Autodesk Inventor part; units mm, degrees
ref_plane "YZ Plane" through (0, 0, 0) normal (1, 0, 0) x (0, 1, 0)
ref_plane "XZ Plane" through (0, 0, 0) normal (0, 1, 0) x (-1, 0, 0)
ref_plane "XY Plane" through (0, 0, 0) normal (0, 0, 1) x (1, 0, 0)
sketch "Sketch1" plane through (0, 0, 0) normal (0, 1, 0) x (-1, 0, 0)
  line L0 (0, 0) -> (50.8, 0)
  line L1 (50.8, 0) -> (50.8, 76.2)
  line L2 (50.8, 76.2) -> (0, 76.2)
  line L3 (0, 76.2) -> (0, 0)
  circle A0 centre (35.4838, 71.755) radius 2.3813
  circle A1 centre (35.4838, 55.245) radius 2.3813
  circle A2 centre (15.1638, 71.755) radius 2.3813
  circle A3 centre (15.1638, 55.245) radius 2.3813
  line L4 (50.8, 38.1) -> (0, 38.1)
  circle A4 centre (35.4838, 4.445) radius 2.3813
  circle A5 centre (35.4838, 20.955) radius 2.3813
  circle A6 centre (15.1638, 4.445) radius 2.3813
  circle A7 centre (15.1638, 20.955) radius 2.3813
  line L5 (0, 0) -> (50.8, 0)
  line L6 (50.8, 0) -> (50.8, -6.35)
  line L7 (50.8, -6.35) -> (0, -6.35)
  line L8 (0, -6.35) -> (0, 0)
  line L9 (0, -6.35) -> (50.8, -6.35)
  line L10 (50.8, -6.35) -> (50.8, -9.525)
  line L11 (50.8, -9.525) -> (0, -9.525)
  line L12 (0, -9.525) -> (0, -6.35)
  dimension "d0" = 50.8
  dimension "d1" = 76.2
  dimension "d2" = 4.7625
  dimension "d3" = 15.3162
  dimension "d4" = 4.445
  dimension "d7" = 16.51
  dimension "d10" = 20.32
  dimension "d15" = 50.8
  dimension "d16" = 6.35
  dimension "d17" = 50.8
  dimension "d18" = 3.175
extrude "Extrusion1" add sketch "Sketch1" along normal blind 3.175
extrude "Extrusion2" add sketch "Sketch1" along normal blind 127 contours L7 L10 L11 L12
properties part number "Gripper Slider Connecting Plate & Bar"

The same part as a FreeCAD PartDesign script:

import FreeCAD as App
import Part
import Sketcher
from FreeCAD import Vector
Q = App.Units.Quantity


def add_polygon(sketch, points):
    """Adds a closed chain of lines whose ends are joined by coincident constraints."""
    first, n = sketch.GeometryCount, len(points)
    for a, b in zip(points, points[1:] + points[:1]):
        sketch.addGeometry(Part.LineSegment(App.Vector(*a, 0), App.Vector(*b, 0)), False)
    for i in range(n):
        sketch.addConstraint(Sketcher.Constraint("Coincident", first + i, 2, first + (i + 1) % n, 1))

doc = App.newDocument("Part")
params = doc.addObject("Spreadsheet::Sheet", "Params")
for row, (alias, value) in enumerate([
    ("sketch1_width", "2 in"),
    ("sketch1_diameter", "0.1875 in"),
    ("pad1_length", "0.125 in"),
    ("sketch2_width", "2 in"),
    ("sketch2_height", "0.125 in"),
    ("pad2_length", "5 in"),
], start=1):
    params.set(f"A{row}", alias)
    params.set(f"B{row}", "=" + value)
    params.setAlias(f"B{row}", alias)

body = doc.addObject("PartDesign::Body", "Body")

sketch1 = body.newObject("Sketcher::SketchObject", "Sketch")
sketch1.AttachmentSupport = (doc.getObject("XZ_Plane"), [""])
sketch1.MapMode = "FlatFace"
add_polygon(sketch1, [(0, -9.5), (-50.8, -9.5), (-50.8, 76.2), (0, 76.2)])
sketch1.addGeometry(Part.Circle(Vector(-15.2, 4.4, 0), Vector(0, 0, 1), 2.4), False)
sketch1.addGeometry(Part.Circle(Vector(-15.2, 21, 0), Vector(0, 0, 1), 2.4), False)
sketch1.addGeometry(Part.Circle(Vector(-35.5, 4.4, 0), Vector(0, 0, 1), 2.4), False)
sketch1.addGeometry(Part.Circle(Vector(-35.5, 21, 0), Vector(0, 0, 1), 2.4), False)
sketch1.addGeometry(Part.Circle(Vector(-35.5, 71.8, 0), Vector(0, 0, 1), 2.4), False)
sketch1.addGeometry(Part.Circle(Vector(-15.2, 55.2, 0), Vector(0, 0, 1), 2.4), False)
sketch1.addGeometry(Part.Circle(Vector(-15.2, 71.8, 0), Vector(0, 0, 1), 2.4), False)
sketch1.addGeometry(Part.Circle(Vector(-35.5, 55.2, 0), Vector(0, 0, 1), 2.4), False)
sketch1.addConstraint([
    Sketcher.Constraint("Horizontal", 0),
    Sketcher.Constraint("Vertical", 1),
    Sketcher.Constraint("Horizontal", 2),
    Sketcher.Constraint("Vertical", 3),
    Sketcher.Constraint("Equal", 4, 5),
    Sketcher.Constraint("Equal", 5, 6),
    Sketcher.Constraint("Equal", 6, 7),
    Sketcher.Constraint("Equal", 7, 8),
    Sketcher.Constraint("Equal", 8, 9),
    Sketcher.Constraint("Equal", 9, 10),
    Sketcher.Constraint("Equal", 10, 11),
    Sketcher.Constraint("PointOnObject", 2, 2, -2),
    Sketcher.Constraint("Horizontal", 4, 3, 6, 3),
    Sketcher.Constraint("Horizontal", 5, 3, 7, 3),
    Sketcher.Constraint("Horizontal", 8, 3, 10, 3),
    Sketcher.Constraint("Horizontal", 9, 3, 11, 3),
    Sketcher.Constraint("Vertical", 4, 3, 5, 3),
    Sketcher.Constraint("Vertical", 6, 3, 7, 3),
    Sketcher.Constraint("Vertical", 7, 3, 8, 3),
    Sketcher.Constraint("Vertical", 5, 3, 9, 3),
    Sketcher.Constraint("Vertical", 9, 3, 10, 3),
    Sketcher.Constraint("Vertical", 8, 3, 11, 3),
    Sketcher.Constraint("DistanceX", 0, 2, 0, 1, Q("2 in")),
    Sketcher.Constraint("Diameter", 4, Q("0.1875 in")),
    Sketcher.Constraint("DistanceY", -1, 1, 1, 2, Q("3 in")),
    Sketcher.Constraint("DistanceY", 7, 3, 8, 3, Q("2 in")),
    Sketcher.Constraint("DistanceY", 4, 3, 9, 3, Q("2 in")),
    Sketcher.Constraint("DistanceX", 6, 3, 4, 3, Q("0.8 in")),
    Sketcher.Constraint("DistanceY", 4, 3, 5, 3, Q("0.65 in")),
    Sketcher.Constraint("DistanceY", -1, 1, 4, 3, Q("0.175 in")),
    Sketcher.Constraint("DistanceX", 0, 2, 6, 3, Q("0.603 in")),
    Sketcher.Constraint("DistanceY", 0, 2, 7, 3, Q("1.2 in")),
])
sketch1.setExpression("Constraints[26]", "Params.sketch1_width")
sketch1.setExpression("Constraints[27]", "Params.sketch1_diameter")
pad1 = body.newObject("PartDesign::Pad", "Pad")
pad1.Profile = sketch1
pad1.setExpression("Length", "Params.pad1_length")
pad1.Reversed = True

sketch2 = body.newObject("Sketcher::SketchObject", "Sketch001")
sketch2.AttachmentSupport = (doc.getObject("XZ_Plane"), [""])
sketch2.MapMode = "FlatFace"
add_polygon(sketch2, [(-50.8, -6.3), (0, -6.3), (0, -9.5), (-50.8, -9.5)])
sketch2.addConstraint([
    Sketcher.Constraint("Horizontal", 0),
    Sketcher.Constraint("Vertical", 1),
    Sketcher.Constraint("Horizontal", 2),
    Sketcher.Constraint("Vertical", 3),
    Sketcher.Constraint("PointOnObject", 0, 2, -2),
    Sketcher.Constraint("DistanceX", 0, 1, 0, 2, Q("2 in")),
    Sketcher.Constraint("DistanceY", 1, 2, 1, 1, Q("0.125 in")),
    Sketcher.Constraint("DistanceY", 0, 2, -1, 1, Q("0.25 in")),
])
sketch2.setExpression("Constraints[9]", "Params.sketch2_width")
sketch2.setExpression("Constraints[10]", "Params.sketch2_height")
pad2 = body.newObject("PartDesign::Pad", "Pad001")
pad2.Profile = sketch2
pad2.setExpression("Length", "Params.pad2_length")
pad2.Reversed = True

doc.recompute()
